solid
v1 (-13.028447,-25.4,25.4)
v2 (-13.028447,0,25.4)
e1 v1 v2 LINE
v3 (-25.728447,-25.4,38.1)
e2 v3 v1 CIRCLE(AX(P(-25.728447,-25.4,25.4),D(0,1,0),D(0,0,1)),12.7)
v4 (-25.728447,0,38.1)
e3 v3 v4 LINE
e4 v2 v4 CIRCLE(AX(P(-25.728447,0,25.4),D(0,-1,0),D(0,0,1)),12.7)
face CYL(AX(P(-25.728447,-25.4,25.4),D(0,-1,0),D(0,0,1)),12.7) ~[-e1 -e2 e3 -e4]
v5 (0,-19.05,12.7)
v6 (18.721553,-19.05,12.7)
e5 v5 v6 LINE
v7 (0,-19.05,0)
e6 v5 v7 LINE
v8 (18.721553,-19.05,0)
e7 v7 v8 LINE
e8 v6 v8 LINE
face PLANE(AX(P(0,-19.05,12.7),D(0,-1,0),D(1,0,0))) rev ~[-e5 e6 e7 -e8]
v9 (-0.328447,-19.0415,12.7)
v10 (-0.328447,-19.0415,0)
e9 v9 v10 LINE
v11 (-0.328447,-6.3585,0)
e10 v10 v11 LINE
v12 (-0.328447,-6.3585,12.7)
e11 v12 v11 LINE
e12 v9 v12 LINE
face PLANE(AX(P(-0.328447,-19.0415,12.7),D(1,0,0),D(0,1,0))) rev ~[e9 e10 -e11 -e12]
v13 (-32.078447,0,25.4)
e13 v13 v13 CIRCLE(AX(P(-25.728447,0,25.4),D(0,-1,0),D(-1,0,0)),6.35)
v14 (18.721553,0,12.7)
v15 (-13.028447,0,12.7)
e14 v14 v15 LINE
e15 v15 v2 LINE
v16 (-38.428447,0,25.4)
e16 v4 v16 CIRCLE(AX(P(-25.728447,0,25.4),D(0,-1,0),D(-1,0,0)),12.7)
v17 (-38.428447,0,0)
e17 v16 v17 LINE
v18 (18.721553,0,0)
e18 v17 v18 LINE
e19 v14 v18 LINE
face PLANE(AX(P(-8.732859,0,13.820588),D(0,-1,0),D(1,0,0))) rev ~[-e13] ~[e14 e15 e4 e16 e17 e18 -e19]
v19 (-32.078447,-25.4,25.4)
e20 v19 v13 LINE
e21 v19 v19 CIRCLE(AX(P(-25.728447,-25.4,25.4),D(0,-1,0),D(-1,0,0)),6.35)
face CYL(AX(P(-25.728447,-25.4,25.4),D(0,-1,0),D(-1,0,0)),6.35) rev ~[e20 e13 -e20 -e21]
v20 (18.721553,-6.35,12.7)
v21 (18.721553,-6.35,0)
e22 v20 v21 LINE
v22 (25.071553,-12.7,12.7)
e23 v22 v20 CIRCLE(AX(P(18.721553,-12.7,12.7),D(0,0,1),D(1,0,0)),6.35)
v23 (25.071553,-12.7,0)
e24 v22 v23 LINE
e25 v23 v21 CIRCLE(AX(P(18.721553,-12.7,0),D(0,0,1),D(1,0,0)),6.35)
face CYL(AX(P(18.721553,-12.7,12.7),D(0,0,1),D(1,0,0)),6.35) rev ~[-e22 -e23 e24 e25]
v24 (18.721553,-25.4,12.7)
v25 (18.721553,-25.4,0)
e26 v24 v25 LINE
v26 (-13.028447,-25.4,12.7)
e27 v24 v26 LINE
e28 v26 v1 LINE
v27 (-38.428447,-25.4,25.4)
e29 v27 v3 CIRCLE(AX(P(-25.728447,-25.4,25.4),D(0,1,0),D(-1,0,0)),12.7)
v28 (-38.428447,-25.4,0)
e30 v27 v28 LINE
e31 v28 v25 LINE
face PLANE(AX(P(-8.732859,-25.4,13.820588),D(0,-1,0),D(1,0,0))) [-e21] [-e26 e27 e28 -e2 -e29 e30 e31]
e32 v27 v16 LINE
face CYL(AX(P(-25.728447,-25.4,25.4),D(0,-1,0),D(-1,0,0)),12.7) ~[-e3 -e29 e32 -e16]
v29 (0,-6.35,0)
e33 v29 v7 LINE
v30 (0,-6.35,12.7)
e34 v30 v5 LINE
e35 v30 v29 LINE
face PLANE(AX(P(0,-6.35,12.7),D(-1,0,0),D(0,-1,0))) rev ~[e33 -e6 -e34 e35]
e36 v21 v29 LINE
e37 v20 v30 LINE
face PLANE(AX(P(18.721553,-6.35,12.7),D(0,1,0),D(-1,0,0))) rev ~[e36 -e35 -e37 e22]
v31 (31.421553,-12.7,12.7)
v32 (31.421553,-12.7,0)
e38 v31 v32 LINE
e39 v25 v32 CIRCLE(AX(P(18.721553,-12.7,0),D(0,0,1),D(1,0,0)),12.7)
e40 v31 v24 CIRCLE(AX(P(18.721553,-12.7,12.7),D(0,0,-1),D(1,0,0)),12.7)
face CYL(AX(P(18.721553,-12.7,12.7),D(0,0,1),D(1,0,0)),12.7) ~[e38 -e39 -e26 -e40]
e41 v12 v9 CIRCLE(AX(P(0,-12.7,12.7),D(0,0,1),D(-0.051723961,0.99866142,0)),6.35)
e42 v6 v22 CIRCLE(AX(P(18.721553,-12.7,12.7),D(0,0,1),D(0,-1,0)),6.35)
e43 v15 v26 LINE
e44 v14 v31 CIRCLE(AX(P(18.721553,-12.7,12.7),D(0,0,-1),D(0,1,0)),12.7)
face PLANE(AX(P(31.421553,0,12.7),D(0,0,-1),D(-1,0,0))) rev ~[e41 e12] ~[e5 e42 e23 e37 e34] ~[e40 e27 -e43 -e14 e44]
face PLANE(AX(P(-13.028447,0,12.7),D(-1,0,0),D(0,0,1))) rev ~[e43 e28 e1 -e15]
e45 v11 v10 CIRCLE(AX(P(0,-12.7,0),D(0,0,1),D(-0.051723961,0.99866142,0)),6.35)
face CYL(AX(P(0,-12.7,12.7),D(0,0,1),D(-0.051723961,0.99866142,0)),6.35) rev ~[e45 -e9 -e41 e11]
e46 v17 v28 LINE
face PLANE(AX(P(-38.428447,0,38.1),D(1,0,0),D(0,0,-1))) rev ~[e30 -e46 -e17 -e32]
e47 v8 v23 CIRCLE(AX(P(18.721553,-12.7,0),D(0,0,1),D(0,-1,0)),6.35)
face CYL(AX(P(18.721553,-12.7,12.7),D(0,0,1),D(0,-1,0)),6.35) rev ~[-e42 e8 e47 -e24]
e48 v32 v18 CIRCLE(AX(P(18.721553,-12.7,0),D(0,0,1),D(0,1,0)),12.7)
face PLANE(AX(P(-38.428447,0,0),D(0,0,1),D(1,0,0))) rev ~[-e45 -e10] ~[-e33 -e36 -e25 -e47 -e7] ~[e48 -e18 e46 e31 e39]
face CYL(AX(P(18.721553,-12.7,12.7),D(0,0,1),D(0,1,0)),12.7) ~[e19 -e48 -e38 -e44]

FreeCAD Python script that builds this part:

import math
import FreeCAD as App
import Part
import Sketcher
Q = App.Units.Quantity

doc = App.newDocument("Part")
params = doc.addObject("Spreadsheet::Sheet", "Params")
for row, (alias, value) in enumerate([
    ("sketch1_width", "1 in"),
    ("sketch1_height", "1.5 in"),
    ("sketch1_width2", "2.75 in"),
    ("pad1_length", "1 in"),
    ("sketch2_diameter", "0.5 in"),
    ("sketch2_radius", "0.5 in"),
    ("sketch3_radius", "0.5 in"),
], start=1):
    params.set(f"A{row}", alias)
    params.set(f"B{row}", "=" + value)
    params.setAlias(f"B{row}", alias)

body = doc.addObject("PartDesign::Body", "Body")

sketch1 = body.newObject("Sketcher::SketchObject", "Sketch")
sketch1.AttachmentSupport = (doc.getObject("XZ_Plane"), [""])
sketch1.MapMode = "FlatFace"
sketch1.addGeometry([
    Part.LineSegment(App.Vector(-38.428447, 38.1, 0), App.Vector(-38.428447, 0, 0)),
    Part.LineSegment(App.Vector(-38.428447, 0, 0), App.Vector(31.421553, 0, 0)),
    Part.LineSegment(App.Vector(31.421553, 0, 0), App.Vector(31.421553, 12.7, 0)),
    Part.LineSegment(App.Vector(31.421553, 12.7, 0), App.Vector(-13.028447, 12.7, 0)),
    Part.LineSegment(App.Vector(-13.028447, 12.7, 0), App.Vector(-13.028447, 38.1, 0)),
    Part.LineSegment(App.Vector(-13.028447, 38.1, 0), App.Vector(-38.428447, 38.1, 0)),
], False)
sketch1.addConstraint([
    Sketcher.Constraint("Coincident", 0, 2, 1, 1),
    Sketcher.Constraint("Coincident", 1, 2, 2, 1),
    Sketcher.Constraint("Coincident", 2, 2, 3, 1),
    Sketcher.Constraint("Coincident", 3, 2, 4, 1),
    Sketcher.Constraint("Coincident", 4, 2, 5, 1),
    Sketcher.Constraint("Coincident", 5, 2, 0, 1),
    Sketcher.Constraint("Vertical", 0),
    Sketcher.Constraint("Horizontal", 1),
    Sketcher.Constraint("Vertical", 2),
    Sketcher.Constraint("Horizontal", 3),
    Sketcher.Constraint("Vertical", 4),
    Sketcher.Constraint("Horizontal", 5),
    Sketcher.Constraint("PointOnObject", 0, 2, -1),
    Sketcher.Constraint("Equal", 5, 4),
    Sketcher.Constraint("DistanceX", 5, 2, 5, 1, Q("1 in")),
    Sketcher.Constraint("DistanceY", 0, 2, 0, 1, Q("1.5 in")),
    Sketcher.Constraint("DistanceX", 1, 1, 1, 2, Q("2.75 in")),
    Sketcher.Constraint("DistanceX", 0, 2, -1, 1, 38.428447),
])
sketch1.setExpression("Constraints[14]", "Params.sketch1_width")
sketch1.setExpression("Constraints[15]", "Params.sketch1_height")
sketch1.setExpression("Constraints[16]", "Params.sketch1_width2")
pad1 = body.newObject("PartDesign::Pad", "Pad")
pad1.Profile = sketch1
pad1.setExpression("Length", "Params.pad1_length")

sketch2 = body.newObject("Sketcher::SketchObject", "Sketch001")
sketch2.AttachmentSupport = (doc.getObject("XZ_Plane"), [""])
sketch2.MapMode = "FlatFace"
sketch2.AttachmentOffset = App.Placement(App.Vector(0, 0, 1 * 25.4), App.Rotation())
sketch2.addGeometry([
    Part.ArcOfCircle(Part.Circle(App.Vector(-25.728447, 25.4, 0), App.Vector(0, 0, 1), 12.7), math.radians(90), math.radians(180)),
    Part.LineSegment(App.Vector(-25.728447, 38.1, 0), App.Vector(-38.428447, 38.1, 0)),
    Part.LineSegment(App.Vector(-38.428447, 38.1, 0), App.Vector(-38.428447, 25.4, 0)),
    Part.ArcOfCircle(Part.Circle(App.Vector(-25.728447, 25.4, 0), App.Vector(0, 0, 1), 12.7), math.radians(0), math.radians(90)),
    Part.LineSegment(App.Vector(-13.028447, 25.4, 0), App.Vector(-13.028447, 38.1, 0)),
    Part.LineSegment(App.Vector(-13.028447, 38.1, 0), App.Vector(-25.728447, 38.1, 0)),
    Part.Circle(App.Vector(-25.728447, 25.4, 0), App.Vector(0, 0, 1), 6.35),
], False)
sketch2.addConstraint([
    Sketcher.Constraint("Tangent", 0, 1, 1, 1),
    Sketcher.Constraint("Coincident", 1, 2, 2, 1),
    Sketcher.Constraint("Tangent", 2, 2, 0, 2),
    Sketcher.Constraint("Tangent", 3, 1, 4, 1),
    Sketcher.Constraint("Coincident", 4, 2, 5, 1),
    Sketcher.Constraint("Tangent", 5, 2, 3, 2),
    Sketcher.Constraint("Horizontal", 1),
    Sketcher.Constraint("Vertical", 2),
    Sketcher.Constraint("Vertical", 4),
    Sketcher.Constraint("Horizontal", 5),
    Sketcher.Constraint("Coincident", 3, 3, 0, 3),
    Sketcher.Constraint("Coincident", 6, 3, 0, 3),
    Sketcher.Constraint("Equal", 0, 3),
    Sketcher.Constraint("Diameter", 6, Q("0.5 in")),
    Sketcher.Constraint("Radius", 0, Q("0.5 in")),
    Sketcher.Constraint("DistanceY", -1, 1, 0, 3, Q("1 in")),
    Sketcher.Constraint("DistanceX", 0, 3, -1, 1, 25.728447),
])
sketch2.setExpression("Constraints[13]", "Params.sketch2_diameter")
sketch2.setExpression("Constraints[14]", "Params.sketch2_radius")
pocket1 = body.newObject("PartDesign::Pocket", "Pocket")
pocket1.Profile = sketch2
pocket1.Type = "ThroughAll"

sketch3 = body.newObject("Sketcher::SketchObject", "Sketch002")
sketch3.AttachmentSupport = (doc.getObject("XY_Plane"), [""])
sketch3.MapMode = "FlatFace"
sketch3.AttachmentOffset = App.Placement(App.Vector(0, 0, 0.5 * 25.4), App.Rotation())
sketch3.addGeometry([
    Part.LineSegment(App.Vector(0, -6.35, 0), App.Vector(0, -19.05, 0)),
    Part.LineSegment(App.Vector(0, -19.05, 0), App.Vector(18.721553, -19.05, 0)),
    Part.ArcOfCircle(Part.Circle(App.Vector(18.721553, -12.7, 0), App.Vector(0, 0, 1), 6.35), math.radians(-90), math.radians(0)),
    Part.ArcOfCircle(Part.Circle(App.Vector(18.721553, -12.7, 0), App.Vector(0, 0, 1), 6.35), math.radians(0), math.radians(90)),
    Part.LineSegment(App.Vector(18.721553, -6.35, 0), App.Vector(0, -6.35, 0)),
    Part.LineSegment(App.Vector(-0.328447, -19.0415, 0), App.Vector(-0.328447, -6.3585, 0)),
    Part.ArcOfCircle(Part.Circle(App.Vector(0, -12.7, 0), App.Vector(0, 0, 1), 6.35), math.radians(92.964888), math.radians(267.035112)),
    Part.LineSegment(App.Vector(31.421553, 0, 0), App.Vector(18.721553, 0, 0)),
    Part.ArcOfCircle(Part.Circle(App.Vector(18.721553, -12.7, 0), App.Vector(0, 0, 1), 12.7), math.radians(0), math.radians(90)),
    Part.LineSegment(App.Vector(31.421553, -12.7, 0), App.Vector(31.421553, 0, 0)),
    Part.LineSegment(App.Vector(31.421553, -25.4, 0), App.Vector(31.421553, -12.7, 0)),
    Part.ArcOfCircle(Part.Circle(App.Vector(18.721553, -12.7, 0), App.Vector(0, 0, 1), 12.7), math.radians(-90), math.radians(0)),
    Part.LineSegment(App.Vector(18.721553, -25.4, 0), App.Vector(31.421553, -25.4, 0)),
], False)
sketch3.addConstraint([
    Sketcher.Constraint("Coincident", 0, 2, 1, 1),
    Sketcher.Constraint("Tangent", 1, 2, 2, 1),
    Sketcher.Constraint("Tangent", 2, 2, 3, 1),
    Sketcher.Constraint("Tangent", 3, 2, 4, 1),
    Sketcher.Constraint("Coincident", 4, 2, 0, 1),
    Sketcher.Constraint("Coincident", 5, 1, 6, 2),
    Sketcher.Constraint("Coincident", 6, 1, 5, 2),
    Sketcher.Constraint("Tangent", 7, 2, 8, 2),
    Sketcher.Constraint("Tangent", 8, 1, 9, 1),
    Sketcher.Constraint("Coincident", 9, 2, 7, 1),
    Sketcher.Constraint("Tangent", 10, 2, 11, 2),
    Sketcher.Constraint("Tangent", 11, 1, 12, 1),
    Sketcher.Constraint("Coincident", 12, 2, 10, 1),
    Sketcher.Constraint("Vertical", 0),
    Sketcher.Constraint("Horizontal", 1),
    Sketcher.Constraint("Horizontal", 4),
    Sketcher.Constraint("Vertical", 5),
    Sketcher.Constraint("Horizontal", 7),
    Sketcher.Constraint("Vertical", 9),
    Sketcher.Constraint("Vertical", 10),
    Sketcher.Constraint("Horizontal", 12),
    Sketcher.Constraint("Coincident", 8, 3, 2, 3),
    Sketcher.Constraint("Coincident", 11, 3, 2, 3),
    Sketcher.Constraint("Equal", 2, 3),
    Sketcher.Constraint("Equal", 3, 6),
    Sketcher.Constraint("Equal", 8, 11),
    Sketcher.Constraint("PointOnObject", 6, 3, -2),
    Sketcher.Constraint("PointOnObject", 0, 2, -2),
    Sketcher.Constraint("PointOnObject", 7, 2, -1),
    Sketcher.Constraint("Horizontal", 3, 3, 6, 3),
    Sketcher.Constraint("Horizontal", 11, 3, 2, 2),
    Sketcher.Constraint("Equal", 12, 0),
    Sketcher.Constraint("Radius", 8, Q("0.5 in")),
    Sketcher.Constraint("DistanceX", 5, 1, 1, 2, Q("0.75 in")),
    Sketcher.Constraint("DistanceY", 5, 1, 5, 2, 12.683),
])
sketch3.setExpression("Constraints[32]", "Params.sketch3_radius")
pocket2 = body.newObject("PartDesign::Pocket", "Pocket001")
pocket2.Profile = sketch3
pocket2.Type = "ThroughAll"

doc.recompute()
